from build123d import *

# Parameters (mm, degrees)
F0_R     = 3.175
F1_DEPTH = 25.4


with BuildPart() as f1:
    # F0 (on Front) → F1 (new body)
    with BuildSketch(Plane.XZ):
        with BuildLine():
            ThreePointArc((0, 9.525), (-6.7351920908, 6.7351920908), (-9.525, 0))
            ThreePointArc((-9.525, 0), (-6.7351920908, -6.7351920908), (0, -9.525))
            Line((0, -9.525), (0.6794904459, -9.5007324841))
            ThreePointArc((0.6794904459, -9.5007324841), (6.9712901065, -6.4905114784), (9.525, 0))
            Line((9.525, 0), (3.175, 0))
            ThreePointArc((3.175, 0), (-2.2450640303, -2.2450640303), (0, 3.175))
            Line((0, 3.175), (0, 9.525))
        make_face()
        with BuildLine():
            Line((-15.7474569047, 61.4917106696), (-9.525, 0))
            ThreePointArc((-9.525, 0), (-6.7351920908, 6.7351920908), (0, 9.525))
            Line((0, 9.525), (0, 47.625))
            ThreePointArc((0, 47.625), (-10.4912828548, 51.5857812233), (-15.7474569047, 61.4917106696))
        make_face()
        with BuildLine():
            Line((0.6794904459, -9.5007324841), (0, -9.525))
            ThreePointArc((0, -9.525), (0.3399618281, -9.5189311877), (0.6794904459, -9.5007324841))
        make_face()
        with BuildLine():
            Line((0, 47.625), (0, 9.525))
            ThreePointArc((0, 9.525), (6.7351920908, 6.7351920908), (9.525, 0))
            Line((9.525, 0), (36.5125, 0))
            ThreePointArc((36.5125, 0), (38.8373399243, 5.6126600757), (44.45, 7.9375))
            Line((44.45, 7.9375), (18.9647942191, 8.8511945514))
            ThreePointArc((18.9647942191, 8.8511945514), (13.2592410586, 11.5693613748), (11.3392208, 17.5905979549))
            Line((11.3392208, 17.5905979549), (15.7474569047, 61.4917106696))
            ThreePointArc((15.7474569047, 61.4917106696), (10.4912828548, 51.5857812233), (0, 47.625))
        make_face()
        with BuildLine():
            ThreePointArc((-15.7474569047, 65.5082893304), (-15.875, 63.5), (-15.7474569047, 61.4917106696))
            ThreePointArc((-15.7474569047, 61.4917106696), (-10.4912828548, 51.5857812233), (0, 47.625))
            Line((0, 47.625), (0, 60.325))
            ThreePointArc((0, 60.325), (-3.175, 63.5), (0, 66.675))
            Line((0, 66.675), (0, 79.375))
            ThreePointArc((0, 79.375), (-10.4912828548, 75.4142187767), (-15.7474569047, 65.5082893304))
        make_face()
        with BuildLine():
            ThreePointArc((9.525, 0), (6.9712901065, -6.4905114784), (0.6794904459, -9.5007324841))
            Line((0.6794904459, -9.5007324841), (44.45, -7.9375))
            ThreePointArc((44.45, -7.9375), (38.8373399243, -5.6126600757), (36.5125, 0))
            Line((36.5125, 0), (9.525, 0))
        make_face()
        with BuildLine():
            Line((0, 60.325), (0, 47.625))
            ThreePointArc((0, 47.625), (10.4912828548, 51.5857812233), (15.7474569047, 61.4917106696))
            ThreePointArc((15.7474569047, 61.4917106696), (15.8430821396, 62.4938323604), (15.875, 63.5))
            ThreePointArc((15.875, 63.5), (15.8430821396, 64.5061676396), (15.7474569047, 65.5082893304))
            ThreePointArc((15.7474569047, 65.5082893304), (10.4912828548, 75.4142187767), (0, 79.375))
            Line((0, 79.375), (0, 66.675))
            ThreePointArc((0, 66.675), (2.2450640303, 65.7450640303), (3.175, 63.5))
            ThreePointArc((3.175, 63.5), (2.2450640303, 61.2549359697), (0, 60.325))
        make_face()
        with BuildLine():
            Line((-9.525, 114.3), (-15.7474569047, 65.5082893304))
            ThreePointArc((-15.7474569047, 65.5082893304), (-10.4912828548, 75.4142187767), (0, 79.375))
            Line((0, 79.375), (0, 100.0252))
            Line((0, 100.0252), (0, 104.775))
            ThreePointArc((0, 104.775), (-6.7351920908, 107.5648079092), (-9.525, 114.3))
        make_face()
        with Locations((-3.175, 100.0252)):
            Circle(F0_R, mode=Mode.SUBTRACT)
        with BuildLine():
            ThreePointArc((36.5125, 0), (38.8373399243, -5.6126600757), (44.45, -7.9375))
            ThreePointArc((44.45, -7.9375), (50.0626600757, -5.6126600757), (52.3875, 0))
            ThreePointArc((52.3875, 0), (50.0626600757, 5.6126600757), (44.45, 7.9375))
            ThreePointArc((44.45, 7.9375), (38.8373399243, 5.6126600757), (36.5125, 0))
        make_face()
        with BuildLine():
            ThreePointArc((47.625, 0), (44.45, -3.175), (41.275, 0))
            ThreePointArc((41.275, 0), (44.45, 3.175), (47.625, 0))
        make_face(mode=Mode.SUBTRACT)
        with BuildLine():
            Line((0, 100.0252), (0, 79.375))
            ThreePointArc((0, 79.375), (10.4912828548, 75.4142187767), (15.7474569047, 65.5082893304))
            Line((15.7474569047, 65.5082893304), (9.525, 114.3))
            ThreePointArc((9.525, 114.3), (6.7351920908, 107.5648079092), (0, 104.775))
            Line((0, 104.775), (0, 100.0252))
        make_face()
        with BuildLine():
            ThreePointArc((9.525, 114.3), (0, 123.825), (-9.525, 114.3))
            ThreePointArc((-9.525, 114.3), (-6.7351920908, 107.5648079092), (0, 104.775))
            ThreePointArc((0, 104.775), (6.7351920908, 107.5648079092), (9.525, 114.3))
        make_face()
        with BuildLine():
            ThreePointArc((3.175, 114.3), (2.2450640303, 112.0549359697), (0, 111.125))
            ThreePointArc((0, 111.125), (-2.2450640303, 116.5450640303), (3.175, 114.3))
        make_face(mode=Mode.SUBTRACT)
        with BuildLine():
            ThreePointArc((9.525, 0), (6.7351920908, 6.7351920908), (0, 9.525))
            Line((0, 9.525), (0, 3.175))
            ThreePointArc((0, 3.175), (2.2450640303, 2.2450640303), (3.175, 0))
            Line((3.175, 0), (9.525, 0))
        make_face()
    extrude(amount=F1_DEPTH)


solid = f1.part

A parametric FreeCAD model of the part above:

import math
import FreeCAD as App
import Part
import Sketcher
Q = App.Units.Quantity

doc = App.newDocument("Part")
body = doc.addObject("PartDesign::Body", "Body")

# Sketch on XZ plane
sketch1 = body.newObject("Sketcher::SketchObject", "Sketch")
sketch1.AttachmentSupport = (doc.getObject("XZ_Plane"), [""])
sketch1.MapMode = "FlatFace"
sketch1.addGeometry([
    Part.ArcOfCircle(Part.Circle(App.Vector(0, 63.5, 0), App.Vector(0, 0, 1), 15.9), math.radians(0), math.radians(7.27)),  # 0
    Part.LineSegment(App.Vector(15.7, 65.5, 0), App.Vector(9.5, 114.3, 0)),  # 1
    Part.ArcOfCircle(Part.Circle(App.Vector(0, 114.3, 0), App.Vector(0, 0, 1), 9.5), math.radians(0), math.radians(180)),  # 2
    Part.LineSegment(App.Vector(-9.5, 114.3, 0), App.Vector(-15.7, 65.5, 0)),  # 3
    Part.ArcOfCircle(Part.Circle(App.Vector(0, 63.5, 0), App.Vector(0, 0, 1), 15.9), math.radians(172.73), math.radians(187.27)),  # 4
    Part.LineSegment(App.Vector(-15.7, 61.5, 0), App.Vector(-9.5, 0, 0)),  # 5
    Part.ArcOfCircle(Part.Circle(App.Vector(0, 0, 0), App.Vector(0, 0, 1), 9.5), math.radians(180), math.radians(270)),  # 6
    Part.ArcOfCircle(Part.Circle(App.Vector(0, 0, 0), App.Vector(0, 0, 1), 9.5), math.radians(-90), math.radians(-85.91)),  # 7
    Part.LineSegment(App.Vector(0.7, -9.5, 0), App.Vector(44.5, -7.9, 0)),  # 8
    Part.ArcOfCircle(Part.Circle(App.Vector(44.5, 0, 0), App.Vector(0, 0, 1), 7.9), math.radians(-90), math.radians(0)),  # 9
    Part.ArcOfCircle(Part.Circle(App.Vector(44.5, 0, 0), App.Vector(0, 0, 1), 7.9), math.radians(0), math.radians(90)),  # 10
    Part.LineSegment(App.Vector(44.5, 7.9, 0), App.Vector(19, 8.9, 0)),  # 11
    Part.ArcOfCircle(Part.Circle(App.Vector(19.2, 16.8, 0), App.Vector(0, 0, 1), 8), math.radians(174), math.radians(268)),  # 12
    Part.LineSegment(App.Vector(11.3, 17.6, 0), App.Vector(15.7, 61.5, 0)),  # 13
    Part.ArcOfCircle(Part.Circle(App.Vector(0, 63.5, 0), App.Vector(0, 0, 1), 15.9), math.radians(-7.27), math.radians(0)),  # 14
    Part.ArcOfCircle(Part.Circle(App.Vector(0, 0, 0), App.Vector(0, 0, 1), 3.2), math.radians(90), math.radians(360)),  # 15
    Part.ArcOfCircle(Part.Circle(App.Vector(0, 0, 0), App.Vector(0, 0, 1), 3.2), math.radians(0), math.radians(90)),  # 16
    Part.Circle(App.Vector(44.5, 0, 0), App.Vector(0, 0, 1), 3.2),  # 17
    Part.ArcOfCircle(Part.Circle(App.Vector(0, 63.5, 0), App.Vector(0, 0, 1), 3.2), math.radians(90), math.radians(270)),  # 18
    Part.ArcOfCircle(Part.Circle(App.Vector(0, 63.5, 0), App.Vector(0, 0, 1), 3.2), math.radians(0), math.radians(90)),  # 19
    Part.ArcOfCircle(Part.Circle(App.Vector(0, 63.5, 0), App.Vector(0, 0, 1), 3.2), math.radians(-90), math.radians(0)),  # 20
    Part.Circle(App.Vector(-3.2, 100, 0), App.Vector(0, 0, 1), 3.2),  # 21
    Part.ArcOfCircle(Part.Circle(App.Vector(0, 114.3, 0), App.Vector(0, 0, 1), 3.2), math.radians(0), math.radians(270)),  # 22
    Part.ArcOfCircle(Part.Circle(App.Vector(0, 114.3, 0), App.Vector(0, 0, 1), 3.2), math.radians(-90), math.radians(0)),  # 23
], False)
sketch1.addConstraint([
    Sketcher.Constraint("Tangent", 0, 2, 1, 1),
    Sketcher.Constraint("Coincident", 1, 2, 2, 1),
    Sketcher.Constraint("Coincident", 2, 2, 3, 1),
    Sketcher.Constraint("Tangent", 3, 2, 4, 1),
    Sketcher.Constraint("Coincident", 4, 2, 5, 1),
    Sketcher.Constraint("Coincident", 5, 2, 6, 1),
    Sketcher.Constraint("Tangent", 6, 2, 7, 1),
    Sketcher.Constraint("Coincident", 7, 2, 8, 1),
    Sketcher.Constraint("Coincident", 8, 2, 9, 1),
    Sketcher.Constraint("Tangent", 9, 2, 10, 1),
    Sketcher.Constraint("Coincident", 10, 2, 11, 1),
    Sketcher.Constraint("Tangent", 11, 2, 12, 2),
    Sketcher.Constraint("Tangent", 12, 1, 13, 1),
    Sketcher.Constraint("Coincident", 13, 2, 14, 1),
    Sketcher.Constraint("Tangent", 14, 2, 0, 1),
    Sketcher.Constraint("Tangent", 15, 1, 16, 2),
    Sketcher.Constraint("Coincident", 16, 1, 15, 2),
    Sketcher.Constraint("Tangent", 18, 1, 19, 2),
    Sketcher.Constraint("Tangent", 19, 1, 20, 2),
    Sketcher.Constraint("Tangent", 20, 1, 18, 2),
    Sketcher.Constraint("Tangent", 22, 1, 23, 2),
    Sketcher.Constraint("Coincident", 23, 1, 22, 2),
    Sketcher.Constraint("Coincident", 6, 3, -1, 1),
    Sketcher.Constraint("Coincident", 15, 3, -1, 1),
    Sketcher.Constraint("Coincident", 4, 3, 0, 3),
    Sketcher.Constraint("Coincident", 17, 3, 9, 3),
    Sketcher.Constraint("Coincident", 18, 3, 0, 3),
    Sketcher.Constraint("Coincident", 22, 3, 2, 3),
    Sketcher.Constraint("Equal", 0, 4),
    Sketcher.Constraint("Equal", 2, 6),
    Sketcher.Constraint("Equal", 6, 7),
    Sketcher.Constraint("Equal", 9, 10),
    Sketcher.Constraint("Equal", 4, 14),
    Sketcher.Constraint("Equal", 16, 17),
    Sketcher.Constraint("Equal", 17, 18),
    Sketcher.Constraint("Equal", 20, 21),
    Sketcher.Constraint("Equal", 21, 22),
    Sketcher.Constraint("Symmetric", 1, 2, 2, 2, -2),
    Sketcher.Constraint("Symmetric", 4, 2, 13, 2, -2),
    Sketcher.Constraint("Symmetric", 8, 2, 10, 2, -1),
    Sketcher.Constraint("PointOnObject", 5, 2, -1),
    Sketcher.Constraint("PointOnObject", 6, 2, -2),
    Sketcher.Constraint("PointOnObject", 9, 2, -1),
    Sketcher.Constraint("PointOnObject", 15, 1, -2),
    Sketcher.Constraint("PointOnObject", 16, 1, -1),
    Sketcher.Constraint("PointOnObject", 18, 1, -2),
    Sketcher.Constraint("PointOnObject", 20, 1, -2),
    Sketcher.Constraint("PointOnObject", 23, 1, -2),
    Sketcher.Constraint("Horizontal", 23, 3, 1, 2),
    Sketcher.Constraint("Horizontal", 20, 3, 14, 2),
    Sketcher.Constraint("Horizontal", 14, 2, 19, 1),
    Sketcher.Constraint("Horizontal", 2, 2, 22, 1),
    Sketcher.Constraint("Vertical", 3, 2, 4, 2),
    Sketcher.Constraint("Vertical", 17, 3, 8, 2),
    Sketcher.Constraint("Diameter", 17, Q("0.25 in")),
    Sketcher.Constraint("Radius", 0, Q("0.625 in")),
    Sketcher.Constraint("Radius", 2, Q("0.375 in")),
    Sketcher.Constraint("Radius", 9, Q("0.3125 in")),
    Sketcher.Constraint("Radius", 12, Q("0.313 in")),
    Sketcher.Constraint("DistanceY", 0, 3, 2, 3, Q("2 in")),
    Sketcher.Constraint("DistanceY", -1, 1, 0, 3, Q("2.5 in")),
    Sketcher.Constraint("DistanceX", 21, 3, 1, 2, Q("0.5 in")),
    Sketcher.Constraint("DistanceX", -1, 1, 9, 3, Q("1.75 in")),
    Sketcher.Constraint("DistanceY", -1, 1, 21, 3, Q("3.938 in")),
    Sketcher.Constraint("Distance", 11, 25.501579),
    Sketcher.Constraint("Distance", 13, 44.121879),
    Sketcher.Constraint("DistanceX", -1, 1, 7, 2, 0.67949),
])
pad1 = body.newObject("PartDesign::Pad", "Pad")
pad1.Profile = sketch1
pad1.Length = Q("1 in")

doc.recompute()
